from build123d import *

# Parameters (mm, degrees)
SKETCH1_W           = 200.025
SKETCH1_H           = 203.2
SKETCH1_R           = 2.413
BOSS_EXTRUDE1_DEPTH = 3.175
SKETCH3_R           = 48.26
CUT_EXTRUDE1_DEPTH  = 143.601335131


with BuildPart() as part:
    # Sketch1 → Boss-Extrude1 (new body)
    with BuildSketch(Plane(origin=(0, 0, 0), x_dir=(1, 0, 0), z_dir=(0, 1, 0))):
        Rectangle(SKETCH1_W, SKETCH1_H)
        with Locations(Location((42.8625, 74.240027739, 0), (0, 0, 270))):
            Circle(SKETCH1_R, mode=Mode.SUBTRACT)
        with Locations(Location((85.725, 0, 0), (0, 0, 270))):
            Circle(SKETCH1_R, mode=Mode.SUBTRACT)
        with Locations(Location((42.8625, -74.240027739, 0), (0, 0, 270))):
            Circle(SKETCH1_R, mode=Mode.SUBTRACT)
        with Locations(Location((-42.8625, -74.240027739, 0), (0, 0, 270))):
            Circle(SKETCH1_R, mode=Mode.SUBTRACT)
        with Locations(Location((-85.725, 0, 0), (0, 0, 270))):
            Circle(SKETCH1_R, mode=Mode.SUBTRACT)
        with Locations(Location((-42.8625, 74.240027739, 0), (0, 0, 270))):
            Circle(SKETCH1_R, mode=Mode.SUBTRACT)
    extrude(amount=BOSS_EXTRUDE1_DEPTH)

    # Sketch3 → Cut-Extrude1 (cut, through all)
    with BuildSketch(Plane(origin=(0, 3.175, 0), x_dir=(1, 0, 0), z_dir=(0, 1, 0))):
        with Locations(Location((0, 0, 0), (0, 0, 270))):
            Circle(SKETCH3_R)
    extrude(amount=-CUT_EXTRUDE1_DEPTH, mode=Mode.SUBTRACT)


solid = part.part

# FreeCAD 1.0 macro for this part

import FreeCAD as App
import Part
import Sketcher
Q = App.Units.Quantity


def add_polygon(sketch, points):
    """Adds a closed chain of lines whose ends are joined by coincident constraints."""
    first, n = sketch.GeometryCount, len(points)
    for a, b in zip(points, points[1:] + points[:1]):
        sketch.addGeometry(Part.LineSegment(App.Vector(*a, 0), App.Vector(*b, 0)), False)
    for i in range(n):
        sketch.addConstraint(Sketcher.Constraint("Coincident", first + i, 2, first + (i + 1) % n, 1))

doc = App.newDocument("Part")
body = doc.addObject("PartDesign::Body", "Body")

sketch1 = doc.addObject("Sketcher::SketchObject", "Sketch")
body.addObject(sketch1)
sketch1.AttachmentSupport = (doc.XZ_Plane, [""])
sketch1.MapMode = "FlatFace"
add_polygon(sketch1, [(-100, -101.6), (-100, 101.6), (100, 101.6), (100, -101.6)])
sketch1.addGeometry(Part.Circle(App.Vector(-42.9, 74.2, 0), App.Vector(0, 0, 1), 2.4), False)
sketch1.addGeometry(Part.Circle(App.Vector(42.9, 74.2, 0), App.Vector(0, 0, 1), 2.4), False)
sketch1.addGeometry(Part.Circle(App.Vector(-85.7, 0, 0), App.Vector(0, 0, 1), 2.4), False)
sketch1.addGeometry(Part.Circle(App.Vector(-42.9, -74.2, 0), App.Vector(0, 0, 1), 2.4), False)
sketch1.addGeometry(Part.Circle(App.Vector(85.7, 0, 0), App.Vector(0, 0, 1), 2.4), False)
sketch1.addGeometry(Part.Circle(App.Vector(42.9, -74.2, 0), App.Vector(0, 0, 1), 2.4), False)
sketch1.addConstraint(Sketcher.Constraint("Vertical", 0))
sketch1.addConstraint(Sketcher.Constraint("Horizontal", 1))
sketch1.addConstraint(Sketcher.Constraint("Vertical", 2))
sketch1.addConstraint(Sketcher.Constraint("Horizontal", 3))
sketch1.addConstraint(Sketcher.Constraint("Equal", 4, 5))
sketch1.addConstraint(Sketcher.Constraint("Equal", 5, 6))
sketch1.addConstraint(Sketcher.Constraint("Equal", 6, 7))
sketch1.addConstraint(Sketcher.Constraint("Equal", 7, 8))
sketch1.addConstraint(Sketcher.Constraint("Equal", 8, 9))
sketch1.addConstraint(Sketcher.Constraint("Symmetric", 5, 3, 7, 3, -1, 1))
sketch1.addConstraint(Sketcher.Constraint("Symmetric", 6, 3, 8, 3, -1, 1))
sketch1.addConstraint(Sketcher.Constraint("Symmetric", 4, 3, 9, 3, -1, 1))
sketch1.addConstraint(Sketcher.Constraint("Symmetric", 0, 2, 2, 2, -1, 1))
sketch1.addConstraint(Sketcher.Constraint("Symmetric", 4, 3, 5, 3, -2))
sketch1.addConstraint(Sketcher.Constraint("PointOnObject", 6, 3, -1))
sketch1.addConstraint(Sketcher.Constraint("Diameter", 4, Q("0.19 in")))
sketch1.addConstraint(Sketcher.Constraint("DistanceY", 0, 1, 0, 2, Q("8 in")))
sketch1.addConstraint(Sketcher.Constraint("DistanceX", 1, 1, 1, 2, Q("7.875 in")))
sketch1.addConstraint(Sketcher.Constraint("DistanceX", 6, 3, 8, 3, Q("6.75 in")))
sketch1.addConstraint(Sketcher.Constraint("DistanceX", 0, 2, 4, 3, Q("2.25 in")))
sketch1.addConstraint(Sketcher.Constraint("DistanceY", -1, 1, 4, 3, 74.240028))
pad1 = doc.addObject("PartDesign::Pad", "Pad")
body.addObject(pad1)
pad1.Profile = sketch1
pad1.Length = Q("0.125 in")
pad1.Reversed = True

sketch2 = doc.addObject("Sketcher::SketchObject", "Sketch001")
body.addObject(sketch2)
sketch2.AttachmentSupport = (doc.XZ_Plane, [""])
sketch2.MapMode = "FlatFace"
sketch2.AttachmentOffset = App.Placement(App.Vector(0, 0, -0.125 * 25.4), App.Rotation())
sketch2.addGeometry(Part.Circle(App.Vector(0, 0, 0), App.Vector(0, 0, 1), 48), False)
sketch2.addConstraint(Sketcher.Constraint("Coincident", 0, 3, -1, 1))
sketch2.addConstraint(Sketcher.Constraint("Diameter", 0, Q("3.8 in")))
pocket1 = doc.addObject("PartDesign::Pocket", "Pocket")
body.addObject(pocket1)
pocket1.Profile = sketch2
pocket1.Type = "ThroughAll"
pocket1.Reversed = True

doc.recompute()
